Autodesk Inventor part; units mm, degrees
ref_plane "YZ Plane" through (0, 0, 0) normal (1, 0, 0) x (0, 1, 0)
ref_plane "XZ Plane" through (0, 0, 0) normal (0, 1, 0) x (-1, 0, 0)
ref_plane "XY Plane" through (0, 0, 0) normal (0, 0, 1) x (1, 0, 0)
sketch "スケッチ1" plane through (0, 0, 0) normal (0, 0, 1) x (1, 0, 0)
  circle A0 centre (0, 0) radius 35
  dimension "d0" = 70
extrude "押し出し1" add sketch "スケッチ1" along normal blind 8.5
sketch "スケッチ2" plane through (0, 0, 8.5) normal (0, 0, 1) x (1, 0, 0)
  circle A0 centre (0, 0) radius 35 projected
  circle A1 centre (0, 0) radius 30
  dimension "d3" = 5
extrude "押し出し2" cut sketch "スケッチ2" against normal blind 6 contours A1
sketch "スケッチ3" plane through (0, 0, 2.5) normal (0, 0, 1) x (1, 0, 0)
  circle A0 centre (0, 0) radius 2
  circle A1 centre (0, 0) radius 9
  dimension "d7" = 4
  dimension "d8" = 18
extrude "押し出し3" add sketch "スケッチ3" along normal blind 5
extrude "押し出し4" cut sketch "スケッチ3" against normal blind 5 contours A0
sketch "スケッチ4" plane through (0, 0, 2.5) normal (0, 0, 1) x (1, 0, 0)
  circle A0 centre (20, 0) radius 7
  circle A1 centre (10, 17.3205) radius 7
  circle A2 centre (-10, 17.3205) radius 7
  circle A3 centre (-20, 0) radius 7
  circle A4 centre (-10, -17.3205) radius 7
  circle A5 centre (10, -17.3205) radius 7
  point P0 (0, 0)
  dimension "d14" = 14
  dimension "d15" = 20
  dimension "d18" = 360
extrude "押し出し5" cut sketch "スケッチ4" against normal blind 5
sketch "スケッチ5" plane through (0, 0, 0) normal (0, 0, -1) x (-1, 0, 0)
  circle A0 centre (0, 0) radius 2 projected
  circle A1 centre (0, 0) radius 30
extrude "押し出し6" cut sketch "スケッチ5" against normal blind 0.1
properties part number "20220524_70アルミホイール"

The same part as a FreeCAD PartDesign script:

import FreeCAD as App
import Part
import Sketcher

V = App.Vector

doc = App.newDocument("Part")
body = doc.addObject("PartDesign::Body", "Body")

# Sketch on XY plane
sketch1 = body.newObject("Sketcher::SketchObject", "Sketch")
sketch1.AttachmentSupport = (doc.getObject("XY_Plane"), [""])
sketch1.MapMode = "FlatFace"
sketch1.addGeometry(Part.Circle(V(0, 0, 0), V(0, 0, 1), 35), False)
sketch1.addConstraint(Sketcher.Constraint("Coincident", 0, 3, -1, 1))
sketch1.addConstraint(Sketcher.Constraint("Diameter", 0, 70.0))
pad1 = body.newObject("PartDesign::Pad", "Pad")
pad1.Profile = sketch1
pad1.Length = 8.5

# Sketch on XY plane
sketch2 = body.newObject("Sketcher::SketchObject", "Sketch001")
sketch2.AttachmentSupport = (doc.getObject("XY_Plane"), [""])
sketch2.MapMode = "FlatFace"
sketch2.AttachmentOffset = App.Placement(V(0, 0, 8.5), App.Rotation())
sketch2.addGeometry(Part.Circle(V(0, 0, 0), V(0, 0, 1), 30), False)
sketch2.addConstraint(Sketcher.Constraint("Coincident", 0, 3, -1, 1))
sketch2.addConstraint(Sketcher.Constraint("Diameter", 0, 60.0))
pocket1 = body.newObject("PartDesign::Pocket", "Pocket")
pocket1.Profile = sketch2
pocket1.Length = 6

# Sketch on XY plane
sketch3 = body.newObject("Sketcher::SketchObject", "Sketch002")
sketch3.AttachmentSupport = (doc.getObject("XY_Plane"), [""])
sketch3.MapMode = "FlatFace"
sketch3.AttachmentOffset = App.Placement(V(0, 0, 2.5), App.Rotation())
sketch3.addGeometry(Part.Circle(V(0, 0, 0), V(0, 0, 1), 9), False)
sketch3.addGeometry(Part.Circle(V(0, 0, 0), V(0, 0, 1), 2), False)
sketch3.addConstraint(Sketcher.Constraint("Coincident", 0, 3, -1, 1))
sketch3.addConstraint(Sketcher.Constraint("Coincident", 1, 3, -1, 1))
sketch3.addConstraint(Sketcher.Constraint("Diameter", 0, 18.0))
sketch3.addConstraint(Sketcher.Constraint("Diameter", 1, 4.0))
pad2 = body.newObject("PartDesign::Pad", "Pad001")
pad2.Profile = sketch3
pad2.Length = 5

# Sketch on XY plane
sketch4 = body.newObject("Sketcher::SketchObject", "Sketch003")
sketch4.AttachmentSupport = (doc.getObject("XY_Plane"), [""])
sketch4.MapMode = "FlatFace"
sketch4.AttachmentOffset = App.Placement(V(0, 0, 2.5), App.Rotation())
sketch4.addGeometry(Part.Circle(V(0, 0, 0), V(0, 0, 1), 2), False)
sketch4.addConstraint(Sketcher.Constraint("Coincident", 0, 3, -1, 1))
sketch4.addConstraint(Sketcher.Constraint("Diameter", 0, 4.0))
pocket2 = body.newObject("PartDesign::Pocket", "Pocket001")
pocket2.Profile = sketch4
pocket2.Length = 5

# Sketch on XY plane
sketch5 = body.newObject("Sketcher::SketchObject", "Sketch004")
sketch5.AttachmentSupport = (doc.getObject("XY_Plane"), [""])
sketch5.MapMode = "FlatFace"
sketch5.AttachmentOffset = App.Placement(V(0, 0, 2.5), App.Rotation())
sketch5.addGeometry(Part.Circle(V(20, 0, 0), V(0, 0, 1), 7), False)
sketch5.addGeometry(Part.Circle(V(10, 17, 0), V(0, 0, 1), 7), False)
sketch5.addGeometry(Part.Circle(V(-10, 17, 0), V(0, 0, 1), 7), False)
sketch5.addGeometry(Part.Circle(V(-20, 0, 0), V(0, 0, 1), 7), False)
sketch5.addGeometry(Part.Circle(V(-10, -17, 0), V(0, 0, 1), 7), False)
sketch5.addGeometry(Part.Circle(V(10, -17, 0), V(0, 0, 1), 7), False)
sketch5.addConstraint(Sketcher.Constraint("Equal", 0, 1))
sketch5.addConstraint(Sketcher.Constraint("Equal", 1, 2))
sketch5.addConstraint(Sketcher.Constraint("Equal", 2, 3))
sketch5.addConstraint(Sketcher.Constraint("Equal", 3, 4))
sketch5.addConstraint(Sketcher.Constraint("Equal", 4, 5))
sketch5.addConstraint(Sketcher.Constraint("Symmetric", 0, 3, 3, 3, -1, 1))
sketch5.addConstraint(Sketcher.Constraint("Symmetric", 1, 3, 4, 3, -1, 1))
sketch5.addConstraint(Sketcher.Constraint("Symmetric", 2, 3, 5, 3, -1, 1))
sketch5.addConstraint(Sketcher.Constraint("Symmetric", 1, 3, 2, 3, -2))
sketch5.addConstraint(Sketcher.Constraint("PointOnObject", 0, 3, -1))
sketch5.addConstraint(Sketcher.Constraint("Diameter", 0, 14.0))
sketch5.addConstraint(Sketcher.Constraint("DistanceX", -1, 1, 0, 3, 20.0))
sketch5.addConstraint(Sketcher.Constraint("DistanceX", 2, 3, 1, 3, 20.0))
sketch5.addConstraint(Sketcher.Constraint("DistanceY", 4, 3, 2, 3, 34.641))
pocket3 = body.newObject("PartDesign::Pocket", "Pocket002")
pocket3.Profile = sketch5
pocket3.Length = 5

# Sketch on XY plane
sketch6 = body.newObject("Sketcher::SketchObject", "Sketch005")
sketch6.AttachmentSupport = (doc.getObject("XY_Plane"), [""])
sketch6.MapMode = "FlatFace"
sketch6.addGeometry(Part.Circle(V(0, 0, 0), V(0, 0, 1), 30), False)
sketch6.addGeometry(Part.Circle(V(0, 0, 0), V(0, 0, 1), 2), False)
sketch6.addConstraint(Sketcher.Constraint("Coincident", 0, 3, -1, 1))
sketch6.addConstraint(Sketcher.Constraint("Coincident", 1, 3, -1, 1))
sketch6.addConstraint(Sketcher.Constraint("Diameter", 0, 60.0))
sketch6.addConstraint(Sketcher.Constraint("Diameter", 1, 4.0))
pocket4 = body.newObject("PartDesign::Pocket", "Pocket003")
pocket4.Profile = sketch6
pocket4.Length = 0.1
pocket4.Reversed = True

doc.recompute()
